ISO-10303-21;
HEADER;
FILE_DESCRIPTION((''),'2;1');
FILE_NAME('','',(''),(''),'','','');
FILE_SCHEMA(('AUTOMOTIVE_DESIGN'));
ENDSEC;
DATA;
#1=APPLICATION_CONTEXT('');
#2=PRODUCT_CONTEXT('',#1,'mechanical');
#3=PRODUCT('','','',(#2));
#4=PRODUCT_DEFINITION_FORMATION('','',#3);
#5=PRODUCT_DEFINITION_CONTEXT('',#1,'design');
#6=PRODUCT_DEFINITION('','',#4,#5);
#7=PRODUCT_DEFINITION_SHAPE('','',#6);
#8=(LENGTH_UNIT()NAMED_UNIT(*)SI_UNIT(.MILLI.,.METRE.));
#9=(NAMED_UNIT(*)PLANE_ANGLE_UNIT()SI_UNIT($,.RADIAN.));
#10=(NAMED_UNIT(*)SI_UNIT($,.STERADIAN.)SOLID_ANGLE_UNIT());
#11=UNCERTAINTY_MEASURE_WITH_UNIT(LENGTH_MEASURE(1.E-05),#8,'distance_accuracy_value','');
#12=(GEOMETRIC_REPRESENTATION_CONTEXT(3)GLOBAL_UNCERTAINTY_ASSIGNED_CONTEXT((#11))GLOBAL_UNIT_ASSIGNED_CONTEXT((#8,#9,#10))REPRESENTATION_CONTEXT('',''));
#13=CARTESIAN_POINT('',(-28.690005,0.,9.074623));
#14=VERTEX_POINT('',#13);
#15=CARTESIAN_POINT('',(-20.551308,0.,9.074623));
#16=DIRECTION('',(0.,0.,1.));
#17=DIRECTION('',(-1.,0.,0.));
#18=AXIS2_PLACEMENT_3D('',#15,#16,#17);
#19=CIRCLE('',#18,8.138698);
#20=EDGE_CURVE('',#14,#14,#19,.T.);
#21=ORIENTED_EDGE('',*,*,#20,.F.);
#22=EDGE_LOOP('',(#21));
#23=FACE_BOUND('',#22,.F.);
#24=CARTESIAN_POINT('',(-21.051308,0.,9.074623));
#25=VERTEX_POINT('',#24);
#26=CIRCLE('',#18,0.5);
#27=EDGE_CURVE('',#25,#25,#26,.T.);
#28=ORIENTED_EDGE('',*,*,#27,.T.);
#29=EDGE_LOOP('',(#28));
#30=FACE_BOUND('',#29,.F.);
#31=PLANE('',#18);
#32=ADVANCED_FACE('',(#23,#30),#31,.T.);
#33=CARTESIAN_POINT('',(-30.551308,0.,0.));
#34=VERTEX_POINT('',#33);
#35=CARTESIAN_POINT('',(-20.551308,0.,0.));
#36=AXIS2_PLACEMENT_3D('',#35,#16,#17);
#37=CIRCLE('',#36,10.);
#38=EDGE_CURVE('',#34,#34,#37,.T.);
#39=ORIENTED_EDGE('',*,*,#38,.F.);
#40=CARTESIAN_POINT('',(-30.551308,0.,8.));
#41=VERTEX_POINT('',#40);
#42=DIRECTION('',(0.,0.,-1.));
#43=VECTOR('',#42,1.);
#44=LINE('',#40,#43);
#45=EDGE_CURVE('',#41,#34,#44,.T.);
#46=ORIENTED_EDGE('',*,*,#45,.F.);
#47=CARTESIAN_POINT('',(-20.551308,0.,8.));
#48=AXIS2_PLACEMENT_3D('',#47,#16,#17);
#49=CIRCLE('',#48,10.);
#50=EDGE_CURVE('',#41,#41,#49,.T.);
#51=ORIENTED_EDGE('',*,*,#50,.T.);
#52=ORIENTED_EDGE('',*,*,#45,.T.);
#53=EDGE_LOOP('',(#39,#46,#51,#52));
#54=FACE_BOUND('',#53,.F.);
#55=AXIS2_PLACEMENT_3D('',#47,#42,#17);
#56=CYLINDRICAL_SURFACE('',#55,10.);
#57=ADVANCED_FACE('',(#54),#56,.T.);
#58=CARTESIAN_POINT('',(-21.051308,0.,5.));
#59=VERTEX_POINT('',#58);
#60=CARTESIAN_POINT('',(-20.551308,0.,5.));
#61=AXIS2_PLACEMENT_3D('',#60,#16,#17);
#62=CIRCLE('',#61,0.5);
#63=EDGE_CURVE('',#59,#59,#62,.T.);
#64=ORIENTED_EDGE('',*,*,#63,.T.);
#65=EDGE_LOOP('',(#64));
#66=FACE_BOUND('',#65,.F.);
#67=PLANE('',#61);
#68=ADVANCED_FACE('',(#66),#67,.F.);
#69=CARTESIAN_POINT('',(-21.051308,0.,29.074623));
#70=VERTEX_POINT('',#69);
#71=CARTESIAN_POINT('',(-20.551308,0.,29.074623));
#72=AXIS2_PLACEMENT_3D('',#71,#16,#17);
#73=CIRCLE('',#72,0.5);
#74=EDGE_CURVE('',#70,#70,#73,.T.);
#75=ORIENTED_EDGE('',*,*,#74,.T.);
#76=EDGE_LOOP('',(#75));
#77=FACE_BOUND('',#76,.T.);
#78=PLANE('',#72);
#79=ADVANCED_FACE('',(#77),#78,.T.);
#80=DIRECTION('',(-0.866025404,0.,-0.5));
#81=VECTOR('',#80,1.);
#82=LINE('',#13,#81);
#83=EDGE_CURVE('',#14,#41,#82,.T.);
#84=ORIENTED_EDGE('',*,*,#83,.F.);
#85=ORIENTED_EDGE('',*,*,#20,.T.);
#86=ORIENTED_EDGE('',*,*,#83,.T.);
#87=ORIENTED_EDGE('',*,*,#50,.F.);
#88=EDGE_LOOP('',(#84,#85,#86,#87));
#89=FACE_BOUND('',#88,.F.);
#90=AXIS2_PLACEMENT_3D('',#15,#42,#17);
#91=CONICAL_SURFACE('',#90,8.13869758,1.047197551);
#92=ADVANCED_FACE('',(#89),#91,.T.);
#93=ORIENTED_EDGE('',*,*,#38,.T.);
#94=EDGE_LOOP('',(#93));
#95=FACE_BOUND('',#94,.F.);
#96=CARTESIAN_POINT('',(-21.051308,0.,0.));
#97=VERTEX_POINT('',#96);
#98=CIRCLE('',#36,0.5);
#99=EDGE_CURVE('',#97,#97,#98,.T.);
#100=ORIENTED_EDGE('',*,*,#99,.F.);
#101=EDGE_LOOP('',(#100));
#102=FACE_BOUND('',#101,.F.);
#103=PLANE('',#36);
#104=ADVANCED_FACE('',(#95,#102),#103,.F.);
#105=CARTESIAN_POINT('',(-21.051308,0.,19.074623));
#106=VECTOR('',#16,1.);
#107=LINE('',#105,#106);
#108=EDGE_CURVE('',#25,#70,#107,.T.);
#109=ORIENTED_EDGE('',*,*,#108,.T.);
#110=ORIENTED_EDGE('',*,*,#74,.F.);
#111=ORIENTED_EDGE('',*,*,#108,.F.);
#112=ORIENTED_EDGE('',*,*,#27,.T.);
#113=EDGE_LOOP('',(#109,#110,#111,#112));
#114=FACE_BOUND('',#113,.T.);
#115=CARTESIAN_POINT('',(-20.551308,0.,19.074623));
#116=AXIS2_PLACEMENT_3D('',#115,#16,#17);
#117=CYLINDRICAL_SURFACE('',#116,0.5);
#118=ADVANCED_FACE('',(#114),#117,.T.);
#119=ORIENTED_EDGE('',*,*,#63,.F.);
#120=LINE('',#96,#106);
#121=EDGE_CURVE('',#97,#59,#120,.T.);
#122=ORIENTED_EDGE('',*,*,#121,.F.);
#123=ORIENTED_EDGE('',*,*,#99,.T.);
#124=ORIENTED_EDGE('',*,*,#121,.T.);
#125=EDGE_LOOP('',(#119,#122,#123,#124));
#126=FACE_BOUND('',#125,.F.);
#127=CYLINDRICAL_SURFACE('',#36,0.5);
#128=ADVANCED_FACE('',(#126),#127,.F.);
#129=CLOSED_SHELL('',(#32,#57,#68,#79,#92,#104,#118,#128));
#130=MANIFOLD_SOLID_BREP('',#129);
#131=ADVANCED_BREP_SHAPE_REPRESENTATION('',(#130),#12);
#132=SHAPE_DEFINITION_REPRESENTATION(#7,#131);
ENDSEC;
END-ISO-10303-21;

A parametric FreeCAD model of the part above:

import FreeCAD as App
import Part
import Sketcher
Q = App.Units.Quantity


def add_polygon(sketch, points):
    """Adds a closed chain of lines whose ends are joined by coincident constraints."""
    first, n = sketch.GeometryCount, len(points)
    for a, b in zip(points, points[1:] + points[:1]):
        sketch.addGeometry(Part.LineSegment(App.Vector(*a, 0), App.Vector(*b, 0)), False)
    for i in range(n):
        sketch.addConstraint(Sketcher.Constraint("Coincident", first + i, 2, first + (i + 1) % n, 1))

doc = App.newDocument("Part")
body = doc.addObject("PartDesign::Body", "Body")

sketch1 = body.newObject("Sketcher::SketchObject", "Sketch")
sketch1.AttachmentSupport = (doc.getObject("XZ_Plane"), [""])
sketch1.MapMode = "FlatFace"
add_polygon(sketch1, [(-21.1, 29.1), (-21.1, 9.1), (-28.7, 9.1), (-30.6, 8), (-30.6, 0), (-21.1, 0), (-21.1, 5), (-20.6, 5), (-20.6, 29.1)])
sketch1.addGeometry(Part.LineSegment(App.Vector(-20.6, 0, 0), App.Vector(-20.6, 29.1, 0)), True)
sketch1.addConstraint([
    Sketcher.Constraint("Vertical", 0),
    Sketcher.Constraint("Horizontal", 1),
    Sketcher.Constraint("Vertical", 3),
    Sketcher.Constraint("Horizontal", 4),
    Sketcher.Constraint("Vertical", 5),
    Sketcher.Constraint("Horizontal", 6),
    Sketcher.Constraint("Vertical", 7),
    Sketcher.Constraint("Horizontal", 8),
    Sketcher.Constraint("Vertical", 9),
    Sketcher.Constraint("Coincident", 9, 2, 7, 2),
    Sketcher.Constraint("PointOnObject", 3, 2, -1),
    Sketcher.Constraint("PointOnObject", 9, 1, -1),
    Sketcher.Constraint("Vertical", 0, 2, 4, 2),
    Sketcher.Constraint("DistanceY", 0, 2, 0, 1, 20.0),
    Sketcher.Constraint("DistanceY", 3, 2, 3, 1, 8.0),
    Sketcher.Constraint("DistanceY", 5, 1, 5, 2, 5.0),
    Sketcher.Constraint("Angle", 2, Q("-150 deg")),
    Sketcher.Constraint("DistanceX", 4, 1, 4, 2, 9.5),
    Sketcher.Constraint("DistanceX", 6, 1, 6, 2, 0.5),
    Sketcher.Constraint("DistanceX", 1, 2, 1, 1, 7.638698),
    Sketcher.Constraint("DistanceX", 0, 2, -1, 1, 21.051308),
])
revolution = body.newObject("PartDesign::Revolution", "Revolution")
revolution.Profile = sketch1
revolution.ReferenceAxis = (sketch1, ["Axis0"])
revolution.Angle = 360

doc.recompute()
